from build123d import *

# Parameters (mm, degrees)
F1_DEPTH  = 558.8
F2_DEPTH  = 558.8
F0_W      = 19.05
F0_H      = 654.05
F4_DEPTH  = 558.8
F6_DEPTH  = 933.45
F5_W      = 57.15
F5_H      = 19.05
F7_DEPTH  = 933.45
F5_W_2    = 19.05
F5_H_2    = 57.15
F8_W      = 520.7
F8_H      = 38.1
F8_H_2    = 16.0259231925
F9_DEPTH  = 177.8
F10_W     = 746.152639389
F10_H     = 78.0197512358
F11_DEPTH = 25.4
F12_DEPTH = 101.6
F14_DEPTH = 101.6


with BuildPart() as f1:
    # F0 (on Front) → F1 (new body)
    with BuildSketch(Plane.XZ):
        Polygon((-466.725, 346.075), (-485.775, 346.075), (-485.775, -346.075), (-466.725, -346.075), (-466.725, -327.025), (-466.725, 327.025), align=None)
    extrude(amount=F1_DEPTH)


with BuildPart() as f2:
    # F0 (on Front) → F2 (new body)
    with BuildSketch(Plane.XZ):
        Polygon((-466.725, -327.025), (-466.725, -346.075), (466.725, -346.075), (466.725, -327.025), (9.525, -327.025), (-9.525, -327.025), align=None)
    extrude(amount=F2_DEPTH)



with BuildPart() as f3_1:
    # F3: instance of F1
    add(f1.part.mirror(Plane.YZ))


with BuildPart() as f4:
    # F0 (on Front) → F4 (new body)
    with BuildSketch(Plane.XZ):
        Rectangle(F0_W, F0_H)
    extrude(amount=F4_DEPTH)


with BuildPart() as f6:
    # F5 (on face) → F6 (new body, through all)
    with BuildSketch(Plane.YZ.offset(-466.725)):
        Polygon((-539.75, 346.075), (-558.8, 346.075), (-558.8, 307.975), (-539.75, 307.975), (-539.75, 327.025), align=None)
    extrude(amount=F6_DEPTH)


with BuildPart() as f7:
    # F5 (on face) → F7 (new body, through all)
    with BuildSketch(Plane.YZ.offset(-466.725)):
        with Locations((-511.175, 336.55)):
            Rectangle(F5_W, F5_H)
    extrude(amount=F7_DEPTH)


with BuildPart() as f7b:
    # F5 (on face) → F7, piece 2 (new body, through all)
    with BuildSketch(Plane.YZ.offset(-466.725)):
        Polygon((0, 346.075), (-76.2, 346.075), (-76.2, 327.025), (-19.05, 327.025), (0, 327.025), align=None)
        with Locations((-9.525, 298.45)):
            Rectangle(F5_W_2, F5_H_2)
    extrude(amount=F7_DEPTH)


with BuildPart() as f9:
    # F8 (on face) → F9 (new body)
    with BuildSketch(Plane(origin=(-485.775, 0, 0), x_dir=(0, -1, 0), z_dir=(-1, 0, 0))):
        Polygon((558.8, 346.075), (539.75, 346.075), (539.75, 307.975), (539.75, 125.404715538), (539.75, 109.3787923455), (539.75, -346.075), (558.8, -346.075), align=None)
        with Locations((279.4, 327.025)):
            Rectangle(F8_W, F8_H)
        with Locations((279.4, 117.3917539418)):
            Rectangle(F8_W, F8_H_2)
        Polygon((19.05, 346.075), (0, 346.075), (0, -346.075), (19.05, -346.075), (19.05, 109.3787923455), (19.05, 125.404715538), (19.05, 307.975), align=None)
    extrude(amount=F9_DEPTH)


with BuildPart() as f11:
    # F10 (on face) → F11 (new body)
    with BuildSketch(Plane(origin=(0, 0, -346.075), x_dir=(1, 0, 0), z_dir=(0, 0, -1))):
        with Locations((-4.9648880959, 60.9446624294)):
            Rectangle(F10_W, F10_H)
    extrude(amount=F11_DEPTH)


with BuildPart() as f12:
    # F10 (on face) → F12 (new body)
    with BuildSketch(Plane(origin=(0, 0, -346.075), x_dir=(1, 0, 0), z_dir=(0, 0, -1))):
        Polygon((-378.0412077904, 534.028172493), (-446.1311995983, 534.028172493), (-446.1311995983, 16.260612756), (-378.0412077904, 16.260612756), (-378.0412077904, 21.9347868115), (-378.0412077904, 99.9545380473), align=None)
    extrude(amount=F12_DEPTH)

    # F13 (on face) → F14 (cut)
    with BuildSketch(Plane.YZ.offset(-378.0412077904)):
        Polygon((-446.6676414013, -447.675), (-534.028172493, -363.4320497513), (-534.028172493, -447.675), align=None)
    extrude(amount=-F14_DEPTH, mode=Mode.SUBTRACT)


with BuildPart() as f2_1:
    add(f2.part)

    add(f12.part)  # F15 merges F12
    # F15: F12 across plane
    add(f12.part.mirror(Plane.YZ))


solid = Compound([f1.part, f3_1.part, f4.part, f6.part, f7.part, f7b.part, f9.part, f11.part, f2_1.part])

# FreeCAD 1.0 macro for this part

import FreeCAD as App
import Part
import Sketcher
from FreeCAD import Vector
Q = App.Units.Quantity


def add_polygon(sketch, points):
    """Adds a closed chain of lines whose ends are joined by coincident constraints."""
    first, n = sketch.GeometryCount, len(points)
    for a, b in zip(points, points[1:] + points[:1]):
        sketch.addGeometry(Part.LineSegment(App.Vector(*a, 0), App.Vector(*b, 0)), False)
    for i in range(n):
        sketch.addConstraint(Sketcher.Constraint("Coincident", first + i, 2, first + (i + 1) % n, 1))

doc = App.newDocument("Part")
params = doc.addObject("Spreadsheet::Sheet", "Params")
for row, (alias, value) in enumerate([
    ("sketch1_width", "0.75 in"),
    ("sketch1_height", "27.25 in"),
    ("pad1_length", "22 in"),
    ("sketch2_width", "36.75 in"),
    ("sketch2_height", "0.75 in"),
    ("pad2_length", "22 in"),
    ("sketch3_width", "0.75 in"),
    ("sketch3_height", "25.75 in"),
    ("pad3_length", "22 in"),
    ("sketch4_height", "1.5 in"),
    ("sketch4_width", "0.75 in"),
    ("pad4_length", "36.75 in"),
    ("sketch5_width", "2.25 in"),
    ("sketch5_height", "0.75 in"),
    ("pad5_length", "36.75 in"),
    ("sketch6_width", "3 in"),
    ("sketch6_width2", "2.25 in"),
    ("pad6_length", "36.75 in"),
    ("sketch7_width", "22 in"),
    ("sketch7_width2", "20.5 in"),
    ("sketch7_height", "27.25 in"),
    ("pad7_length", "7 in"),
    ("pad8_length", "1 in"),
    ("pad9_length", "4 in"),
    ("pocket1_length", "4 in"),
], start=1):
    params.set(f"A{row}", alias)
    params.set(f"B{row}", "=" + value)
    params.setAlias(f"B{row}", alias)

body = doc.addObject("PartDesign::Body", "Body")

# Sketch on XZ plane
sketch1 = body.newObject("Sketcher::SketchObject", "Sketch")
sketch1.AttachmentSupport = (doc.getObject("XZ_Plane"), [""])
sketch1.MapMode = "FlatFace"
add_polygon(sketch1, [(-467, 346), (-486, 346), (-486, -346), (-467, -346)])  # lines 0-3
sketch1.addConstraint([
    Sketcher.Constraint("Horizontal", 0),
    Sketcher.Constraint("Vertical", 1),
    Sketcher.Constraint("Horizontal", 2),
    Sketcher.Constraint("Vertical", 3),
    Sketcher.Constraint("DistanceX", 0, 2, 0, 1, Q("0.75 in")),
    Sketcher.Constraint("DistanceY", 1, 2, 1, 1, Q("27.25 in")),
    Sketcher.Constraint("DistanceX", 0, 2, -1, 1, Q("19.125 in")),
    Sketcher.Constraint("DistanceY", -1, 1, 0, 2, Q("13.625 in")),
])
sketch1.setExpression("Constraints[8]", "Params.sketch1_width")
sketch1.setExpression("Constraints[9]", "Params.sketch1_height")
pad1 = body.newObject("PartDesign::Pad", "Pad")
pad1.Profile = sketch1
pad1.setExpression("Length", "Params.pad1_length")
body2 = doc.addObject("PartDesign::Body", "Body001")

# Sketch on XZ plane
sketch2 = body2.newObject("Sketcher::SketchObject", "Sketch001")
sketch2.AttachmentSupport = (doc.getObject("XZ_Plane001"), [""])
sketch2.MapMode = "FlatFace"
add_polygon(sketch2, [(-467, -327), (-467, -346), (467, -346), (467, -327)])  # lines 0-3
sketch2.addConstraint([
    Sketcher.Constraint("Vertical", 0),
    Sketcher.Constraint("Horizontal", 1),
    Sketcher.Constraint("Vertical", 2),
    Sketcher.Constraint("Horizontal", 3),
    Sketcher.Constraint("DistanceX", 1, 1, 1, 2, Q("36.75 in")),
    Sketcher.Constraint("DistanceY", 0, 2, 0, 1, Q("0.75 in")),
    Sketcher.Constraint("DistanceX", 0, 2, -1, 1, Q("18.375 in")),
    Sketcher.Constraint("DistanceY", 0, 2, -1, 1, Q("13.625 in")),
])
sketch2.setExpression("Constraints[8]", "Params.sketch2_width")
sketch2.setExpression("Constraints[9]", "Params.sketch2_height")
pad2 = body2.newObject("PartDesign::Pad", "Pad001")
pad2.Profile = sketch2
pad2.setExpression("Length", "Params.pad2_length")
body3 = doc.addObject("PartDesign::Body", "Body002")
doc.recompute()

mirroring = doc.addObject("Part::Mirroring", "Mirroring")
mirroring.Source = body
mirroring.Base = Vector(0, 0, 0)
mirroring.Normal = Vector(1, 0, 0)
body3.BaseFeature = mirroring
doc.recompute()
body4 = doc.addObject("PartDesign::Body", "Body003")

# Sketch on XZ plane
sketch3 = body4.newObject("Sketcher::SketchObject", "Sketch002")
sketch3.AttachmentSupport = (doc.getObject("XZ_Plane003"), [""])
sketch3.MapMode = "FlatFace"
add_polygon(sketch3, [(-10, 327), (-10, -327), (10, -327), (10, 327)])  # lines 0-3
sketch3.addConstraint([
    Sketcher.Constraint("Vertical", 0),
    Sketcher.Constraint("Horizontal", 1),
    Sketcher.Constraint("Vertical", 2),
    Sketcher.Constraint("Horizontal", 3),
    Sketcher.Constraint("Symmetric", 0, 2, 2, 2, -1, 1),
    Sketcher.Constraint("DistanceX", 1, 1, 1, 2, Q("0.75 in")),
    Sketcher.Constraint("DistanceY", 0, 2, 0, 1, Q("25.75 in")),
])
sketch3.setExpression("Constraints[9]", "Params.sketch3_width")
sketch3.setExpression("Constraints[10]", "Params.sketch3_height")
pad3 = body4.newObject("PartDesign::Pad", "Pad002")
pad3.Profile = sketch3
pad3.setExpression("Length", "Params.pad3_length")
body5 = doc.addObject("PartDesign::Body", "Body004")

# Sketch on YZ plane
sketch4 = body5.newObject("Sketcher::SketchObject", "Sketch003")
sketch4.AttachmentSupport = (doc.getObject("YZ_Plane004"), [""])
sketch4.MapMode = "FlatFace"
sketch4.AttachmentOffset = App.Placement(Vector(0, 0, -18.375 * 25.4), App.Rotation())
add_polygon(sketch4, [(-540, 346), (-559, 346), (-559, 308), (-540, 308)])  # lines 0-3
sketch4.addConstraint([
    Sketcher.Constraint("Horizontal", 0),
    Sketcher.Constraint("Vertical", 1),
    Sketcher.Constraint("Horizontal", 2),
    Sketcher.Constraint("Vertical", 3),
    Sketcher.Constraint("DistanceY", 1, 2, 1, 1, Q("1.5 in")),
    Sketcher.Constraint("DistanceX", 0, 2, -1, 1, Q("22 in")),
    Sketcher.Constraint("DistanceX", 0, 2, 0, 1, Q("0.75 in")),
    Sketcher.Constraint("DistanceY", -1, 1, 0, 2, Q("13.625 in")),
])
sketch4.setExpression("Constraints[8]", "Params.sketch4_height")
sketch4.setExpression("Constraints[10]", "Params.sketch4_width")
pad4 = body5.newObject("PartDesign::Pad", "Pad003")
pad4.Profile = sketch4
pad4.setExpression("Length", "Params.pad4_length")
body6 = doc.addObject("PartDesign::Body", "Body005")

# Sketch on YZ plane
sketch5 = body6.newObject("Sketcher::SketchObject", "Sketch004")
sketch5.AttachmentSupport = (doc.getObject("YZ_Plane005"), [""])
sketch5.MapMode = "FlatFace"
sketch5.AttachmentOffset = App.Placement(Vector(0, 0, -18.375 * 25.4), App.Rotation())
add_polygon(sketch5, [(-540, 346), (-540, 327), (-483, 327), (-483, 346)])  # lines 0-3
sketch5.addConstraint([
    Sketcher.Constraint("Vertical", 0),
    Sketcher.Constraint("Horizontal", 1),
    Sketcher.Constraint("Vertical", 2),
    Sketcher.Constraint("Horizontal", 3),
    Sketcher.Constraint("DistanceX", 1, 2, -1, 1, Q("19 in")),
    Sketcher.Constraint("DistanceX", 1, 1, 1, 2, Q("2.25 in")),
    Sketcher.Constraint("DistanceY", 0, 2, 0, 1, Q("0.75 in")),
    Sketcher.Constraint("DistanceY", -1, 1, 0, 2, Q("12.875 in")),
])
sketch5.setExpression("Constraints[9]", "Params.sketch5_width")
sketch5.setExpression("Constraints[10]", "Params.sketch5_height")
pad5 = body6.newObject("PartDesign::Pad", "Pad004")
pad5.Profile = sketch5
pad5.setExpression("Length", "Params.pad5_length")
body7 = doc.addObject("PartDesign::Body", "Body006")

# Sketch on YZ plane
sketch6 = body7.newObject("Sketcher::SketchObject", "Sketch005")
sketch6.AttachmentSupport = (doc.getObject("YZ_Plane006"), [""])
sketch6.MapMode = "FlatFace"
sketch6.AttachmentOffset = App.Placement(Vector(0, 0, -18.375 * 25.4), App.Rotation())
add_polygon(sketch6, [(0, 346), (-76, 346), (-76, 327), (-19, 327), (-19, 270), (0, 270)])  # lines 0-5
sketch6.addConstraint([
    Sketcher.Constraint("Horizontal", 0),
    Sketcher.Constraint("Vertical", 1),
    Sketcher.Constraint("Horizontal", 2),
    Sketcher.Constraint("Vertical", 3),
    Sketcher.Constraint("Horizontal", 4),
    Sketcher.Constraint("Vertical", 5),
    Sketcher.Constraint("PointOnObject", 4, 2, -2),
    Sketcher.Constraint("Equal", 4, 1),
    Sketcher.Constraint("Equal", 2, 3),
    Sketcher.Constraint("DistanceX", 0, 2, 0, 1, Q("3 in")),
    Sketcher.Constraint("DistanceX", 2, 1, 2, 2, Q("2.25 in")),
    Sketcher.Constraint("DistanceY", -1, 1, 0, 2, Q("13.625 in")),
])
sketch6.setExpression("Constraints[15]", "Params.sketch6_width")
sketch6.setExpression("Constraints[16]", "Params.sketch6_width2")
pad6 = body7.newObject("PartDesign::Pad", "Pad005")
pad6.Profile = sketch6
pad6.setExpression("Length", "Params.pad6_length")
body8 = doc.addObject("PartDesign::Body", "Body007")

# Sketch on YZ plane
sketch7 = body8.newObject("Sketcher::SketchObject", "Sketch006")
sketch7.AttachmentSupport = (doc.getObject("YZ_Plane007"), [""])
sketch7.MapMode = "FlatFace"
sketch7.AttachmentOffset = App.Placement(Vector(0, 0, -19.125 * 25.4), App.Rotation())
add_polygon(sketch7, [(-559, 346), (0, 346), (0, -346), (-19, -346), (-19, 109), (-540, 109), (-540, -346), (-559, -346)])  # lines 0-7
add_polygon(sketch7, [(-19, 308), (-540, 308), (-540, 125), (-19, 125)])  # lines 8-11
sketch7.addConstraint([
    Sketcher.Constraint("Horizontal", 0),
    Sketcher.Constraint("Vertical", 1),
    Sketcher.Constraint("Horizontal", 2),
    Sketcher.Constraint("Vertical", 3),
    Sketcher.Constraint("Horizontal", 4),
    Sketcher.Constraint("Vertical", 5),
    Sketcher.Constraint("Horizontal", 6),
    Sketcher.Constraint("Vertical", 7),
    Sketcher.Constraint("Horizontal", 8),
    Sketcher.Constraint("Vertical", 9),
    Sketcher.Constraint("Horizontal", 10),
    Sketcher.Constraint("Vertical", 11),
    Sketcher.Constraint("Symmetric", 0, 2, 1, 2, -1, 1),
    Sketcher.Constraint("Horizontal", 2, 2, 5, 2),
    Sketcher.Constraint("Vertical", 5, 2, 8, 2),
    Sketcher.Constraint("Vertical", 3, 2, 10, 2),
    Sketcher.Constraint("Equal", 2, 6),
    Sketcher.Constraint("DistanceX", 0, 1, 0, 2, Q("22 in")),
    Sketcher.Constraint("DistanceX", 4, 2, 4, 1, Q("20.5 in")),
    Sketcher.Constraint("DistanceY", 1, 2, 1, 1, Q("27.25 in")),
    Sketcher.Constraint("DistanceY", 8, 2, 7, 2, Q("1.5 in")),
    Sketcher.Constraint("DistanceY", 3, 1, 3, 2, Q("455.453792 mm")),
    Sketcher.Constraint("DistanceY", 9, 2, 9, 1, Q("182.570284 mm")),
])
sketch7.setExpression("Constraints[29]", "Params.sketch7_width")
sketch7.setExpression("Constraints[30]", "Params.sketch7_width2")
sketch7.setExpression("Constraints[31]", "Params.sketch7_height")
pad7 = body8.newObject("PartDesign::Pad", "Pad006")
pad7.Profile = sketch7
pad7.setExpression("Length", "Params.pad7_length")
pad7.Reversed = True
body9 = doc.addObject("PartDesign::Body", "Body008")

# Sketch on XY plane
sketch8 = body9.newObject("Sketcher::SketchObject", "Sketch007")
sketch8.AttachmentSupport = (doc.getObject("XY_Plane008"), [""])
sketch8.MapMode = "FlatFace"
sketch8.AttachmentOffset = App.Placement(Vector(0, 0, -13.625 * 25.4), App.Rotation())
add_polygon(sketch8, [(-378, -100), (-378, -22), (368, -22), (368, -100)])  # lines 0-3
sketch8.addConstraint([
    Sketcher.Constraint("Vertical", 0),
    Sketcher.Constraint("Horizontal", 1),
    Sketcher.Constraint("Vertical", 2),
    Sketcher.Constraint("Horizontal", 3),
    Sketcher.Constraint("DistanceX", 1, 1, 1, 2, Q("746.152639 mm")),
    Sketcher.Constraint("DistanceY", 0, 1, 0, 2, Q("78.019751 mm")),
    Sketcher.Constraint("DistanceX", -1, 1, 1, 2, Q("368.111432 mm")),
    Sketcher.Constraint("DistanceY", 2, 2, -1, 1, Q("99.954538 mm")),
])
pad8 = body9.newObject("PartDesign::Pad", "Pad007")
pad8.Profile = sketch8
pad8.setExpression("Length", "Params.pad8_length")
pad8.Reversed = True
body10 = doc.addObject("PartDesign::Body", "Body009")

# Sketch on XY plane
sketch9 = body10.newObject("Sketcher::SketchObject", "Sketch008")
sketch9.AttachmentSupport = (doc.getObject("XY_Plane009"), [""])
sketch9.MapMode = "FlatFace"
sketch9.AttachmentOffset = App.Placement(Vector(0, 0, -13.625 * 25.4), App.Rotation())
add_polygon(sketch9, [(-378, -534), (-446, -534), (-446, -16), (-378, -16)])  # lines 0-3
sketch9.addConstraint([
    Sketcher.Constraint("Horizontal", 0),
    Sketcher.Constraint("Vertical", 1),
    Sketcher.Constraint("Horizontal", 2),
    Sketcher.Constraint("Vertical", 3),
    Sketcher.Constraint("DistanceX", 0, 2, 0, 1, Q("68.089992 mm")),
    Sketcher.Constraint("DistanceY", 1, 1, 1, 2, Q("517.76756 mm")),
    Sketcher.Constraint("DistanceX", 0, 2, -1, 1, Q("446.1312 mm")),
    Sketcher.Constraint("DistanceY", 0, 2, -1, 1, Q("534.028172 mm")),
])
pad9 = body10.newObject("PartDesign::Pad", "Pad008")
pad9.Profile = sketch9
pad9.setExpression("Length", "Params.pad9_length")
pad9.Reversed = True

# Sketch on YZ plane
sketch10 = body10.newObject("Sketcher::SketchObject", "Sketch009")
sketch10.AttachmentSupport = (doc.getObject("YZ_Plane009"), [""])
sketch10.MapMode = "FlatFace"
sketch10.AttachmentOffset = App.Placement(Vector(0, 0, -378.041208), App.Rotation())
add_polygon(sketch10, [(-447, -448), (-534, -363), (-534, -448)])  # lines 0-2
sketch10.addConstraint([
    Sketcher.Constraint("Vertical", 1),
    Sketcher.Constraint("Horizontal", 2),
    Sketcher.Constraint("DistanceY", 1, 2, -1, 1, Q("17.625 in")),
    Sketcher.Constraint("DistanceX", 2, 1, 2, 2, Q("87.360531 mm")),
    Sketcher.Constraint("DistanceY", 1, 2, 1, 1, Q("84.24295 mm")),
    Sketcher.Constraint("DistanceX", 2, 2, -1, 1, Q("446.667641 mm")),
])
pocket1 = body10.newObject("PartDesign::Pocket", "Pocket")
pocket1.Profile = sketch10
pocket1.setExpression("Length", "Params.pocket1_length")
doc.recompute()

body11 = doc.addObject("PartDesign::Body", "Body010")
body11.BaseFeature = body10
boolean = body2.newObject("PartDesign::Boolean", "Boolean")
boolean.Type = "Fuse"
boolean.addObjects([body11])
doc.recompute()

mirroring2 = doc.addObject("Part::Mirroring", "Mirroring001")
mirroring2.Source = body10
mirroring2.Base = Vector(0, 0, 0)
mirroring2.Normal = Vector(1, 0, 0)
body12 = doc.addObject("PartDesign::Body", "Body011")
body12.BaseFeature = mirroring2
boolean2 = body2.newObject("PartDesign::Boolean", "Boolean001")
boolean2.Type = "Fuse"
boolean2.addObjects([body12])
doc.recompute()
mirroring.Visibility = False
mirroring2.Visibility = False

doc.recompute()
